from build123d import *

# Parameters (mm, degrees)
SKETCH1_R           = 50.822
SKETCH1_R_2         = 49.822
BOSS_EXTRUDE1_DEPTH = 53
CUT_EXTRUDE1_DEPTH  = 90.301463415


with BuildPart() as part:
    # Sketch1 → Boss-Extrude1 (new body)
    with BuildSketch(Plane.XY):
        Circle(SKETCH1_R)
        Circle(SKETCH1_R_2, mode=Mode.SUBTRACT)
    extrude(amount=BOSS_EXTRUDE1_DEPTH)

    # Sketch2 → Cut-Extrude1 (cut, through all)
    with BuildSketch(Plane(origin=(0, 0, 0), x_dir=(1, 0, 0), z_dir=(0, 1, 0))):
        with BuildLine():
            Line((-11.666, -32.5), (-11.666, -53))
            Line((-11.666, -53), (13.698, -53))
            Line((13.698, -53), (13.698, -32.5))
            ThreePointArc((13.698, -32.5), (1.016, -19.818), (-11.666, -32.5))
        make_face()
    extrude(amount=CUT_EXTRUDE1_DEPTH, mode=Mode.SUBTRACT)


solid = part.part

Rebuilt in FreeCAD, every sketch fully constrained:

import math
import FreeCAD as App
import Part
import Sketcher

doc = App.newDocument("Part")
body = doc.addObject("PartDesign::Body", "Body")

# Sketch on XY plane
sketch1 = doc.addObject("Sketcher::SketchObject", "Sketch")
body.addObject(sketch1)
sketch1.AttachmentSupport = (doc.XY_Plane, [""])
sketch1.MapMode = "FlatFace"
sketch1.addGeometry([
    Part.Circle(App.Vector(0, 0, 0), App.Vector(0, 0, 1), 50.822),
    Part.Circle(App.Vector(0, 0, 0), App.Vector(0, 0, 1), 49.822),
], False)
sketch1.addConstraint([
    Sketcher.Constraint("Coincident", 0, 3, -1, 1),
    Sketcher.Constraint("Coincident", 1, 3, -1, 1),
    Sketcher.Constraint("Diameter", 0, 101.644),
    Sketcher.Constraint("Diameter", 1, 99.644),
])
pad1 = doc.addObject("PartDesign::Pad", "Pad")
body.addObject(pad1)
pad1.Profile = sketch1
pad1.Length = 53

# Sketch on XZ plane
sketch2 = doc.addObject("Sketcher::SketchObject", "Sketch001")
body.addObject(sketch2)
sketch2.AttachmentSupport = (doc.XZ_Plane, [""])
sketch2.MapMode = "FlatFace"
sketch2.addGeometry([
    Part.LineSegment(App.Vector(-11.666, 32.5, 0), App.Vector(-11.666, 53, 0)),
    Part.LineSegment(App.Vector(-11.666, 53, 0), App.Vector(13.698, 53, 0)),
    Part.LineSegment(App.Vector(13.698, 53, 0), App.Vector(13.698, 32.5, 0)),
    Part.ArcOfCircle(Part.Circle(App.Vector(1.016, 32.5, 0), App.Vector(0, 0, 1), 12.682), math.radians(180), math.radians(360)),
], False)
sketch2.addConstraint([
    Sketcher.Constraint("Coincident", 0, 2, 1, 1),
    Sketcher.Constraint("Coincident", 1, 2, 2, 1),
    Sketcher.Constraint("Tangent", 2, 2, 3, 2),
    Sketcher.Constraint("Tangent", 3, 1, 0, 1),
    Sketcher.Constraint("Vertical", 0),
    Sketcher.Constraint("Horizontal", 1),
    Sketcher.Constraint("Vertical", 2),
    Sketcher.Constraint("DistanceY", 0, 1, 0, 2, 20.5),
    Sketcher.Constraint("DistanceY", -1, 1, 0, 2, 53.0),
    Sketcher.Constraint("Radius", 3, 12.682),
    Sketcher.Constraint("DistanceX", -1, 1, 3, 3, 1.016),
])
pocket1 = doc.addObject("PartDesign::Pocket", "Pocket")
body.addObject(pocket1)
pocket1.Profile = sketch2
pocket1.Type = "ThroughAll"

doc.recompute()
